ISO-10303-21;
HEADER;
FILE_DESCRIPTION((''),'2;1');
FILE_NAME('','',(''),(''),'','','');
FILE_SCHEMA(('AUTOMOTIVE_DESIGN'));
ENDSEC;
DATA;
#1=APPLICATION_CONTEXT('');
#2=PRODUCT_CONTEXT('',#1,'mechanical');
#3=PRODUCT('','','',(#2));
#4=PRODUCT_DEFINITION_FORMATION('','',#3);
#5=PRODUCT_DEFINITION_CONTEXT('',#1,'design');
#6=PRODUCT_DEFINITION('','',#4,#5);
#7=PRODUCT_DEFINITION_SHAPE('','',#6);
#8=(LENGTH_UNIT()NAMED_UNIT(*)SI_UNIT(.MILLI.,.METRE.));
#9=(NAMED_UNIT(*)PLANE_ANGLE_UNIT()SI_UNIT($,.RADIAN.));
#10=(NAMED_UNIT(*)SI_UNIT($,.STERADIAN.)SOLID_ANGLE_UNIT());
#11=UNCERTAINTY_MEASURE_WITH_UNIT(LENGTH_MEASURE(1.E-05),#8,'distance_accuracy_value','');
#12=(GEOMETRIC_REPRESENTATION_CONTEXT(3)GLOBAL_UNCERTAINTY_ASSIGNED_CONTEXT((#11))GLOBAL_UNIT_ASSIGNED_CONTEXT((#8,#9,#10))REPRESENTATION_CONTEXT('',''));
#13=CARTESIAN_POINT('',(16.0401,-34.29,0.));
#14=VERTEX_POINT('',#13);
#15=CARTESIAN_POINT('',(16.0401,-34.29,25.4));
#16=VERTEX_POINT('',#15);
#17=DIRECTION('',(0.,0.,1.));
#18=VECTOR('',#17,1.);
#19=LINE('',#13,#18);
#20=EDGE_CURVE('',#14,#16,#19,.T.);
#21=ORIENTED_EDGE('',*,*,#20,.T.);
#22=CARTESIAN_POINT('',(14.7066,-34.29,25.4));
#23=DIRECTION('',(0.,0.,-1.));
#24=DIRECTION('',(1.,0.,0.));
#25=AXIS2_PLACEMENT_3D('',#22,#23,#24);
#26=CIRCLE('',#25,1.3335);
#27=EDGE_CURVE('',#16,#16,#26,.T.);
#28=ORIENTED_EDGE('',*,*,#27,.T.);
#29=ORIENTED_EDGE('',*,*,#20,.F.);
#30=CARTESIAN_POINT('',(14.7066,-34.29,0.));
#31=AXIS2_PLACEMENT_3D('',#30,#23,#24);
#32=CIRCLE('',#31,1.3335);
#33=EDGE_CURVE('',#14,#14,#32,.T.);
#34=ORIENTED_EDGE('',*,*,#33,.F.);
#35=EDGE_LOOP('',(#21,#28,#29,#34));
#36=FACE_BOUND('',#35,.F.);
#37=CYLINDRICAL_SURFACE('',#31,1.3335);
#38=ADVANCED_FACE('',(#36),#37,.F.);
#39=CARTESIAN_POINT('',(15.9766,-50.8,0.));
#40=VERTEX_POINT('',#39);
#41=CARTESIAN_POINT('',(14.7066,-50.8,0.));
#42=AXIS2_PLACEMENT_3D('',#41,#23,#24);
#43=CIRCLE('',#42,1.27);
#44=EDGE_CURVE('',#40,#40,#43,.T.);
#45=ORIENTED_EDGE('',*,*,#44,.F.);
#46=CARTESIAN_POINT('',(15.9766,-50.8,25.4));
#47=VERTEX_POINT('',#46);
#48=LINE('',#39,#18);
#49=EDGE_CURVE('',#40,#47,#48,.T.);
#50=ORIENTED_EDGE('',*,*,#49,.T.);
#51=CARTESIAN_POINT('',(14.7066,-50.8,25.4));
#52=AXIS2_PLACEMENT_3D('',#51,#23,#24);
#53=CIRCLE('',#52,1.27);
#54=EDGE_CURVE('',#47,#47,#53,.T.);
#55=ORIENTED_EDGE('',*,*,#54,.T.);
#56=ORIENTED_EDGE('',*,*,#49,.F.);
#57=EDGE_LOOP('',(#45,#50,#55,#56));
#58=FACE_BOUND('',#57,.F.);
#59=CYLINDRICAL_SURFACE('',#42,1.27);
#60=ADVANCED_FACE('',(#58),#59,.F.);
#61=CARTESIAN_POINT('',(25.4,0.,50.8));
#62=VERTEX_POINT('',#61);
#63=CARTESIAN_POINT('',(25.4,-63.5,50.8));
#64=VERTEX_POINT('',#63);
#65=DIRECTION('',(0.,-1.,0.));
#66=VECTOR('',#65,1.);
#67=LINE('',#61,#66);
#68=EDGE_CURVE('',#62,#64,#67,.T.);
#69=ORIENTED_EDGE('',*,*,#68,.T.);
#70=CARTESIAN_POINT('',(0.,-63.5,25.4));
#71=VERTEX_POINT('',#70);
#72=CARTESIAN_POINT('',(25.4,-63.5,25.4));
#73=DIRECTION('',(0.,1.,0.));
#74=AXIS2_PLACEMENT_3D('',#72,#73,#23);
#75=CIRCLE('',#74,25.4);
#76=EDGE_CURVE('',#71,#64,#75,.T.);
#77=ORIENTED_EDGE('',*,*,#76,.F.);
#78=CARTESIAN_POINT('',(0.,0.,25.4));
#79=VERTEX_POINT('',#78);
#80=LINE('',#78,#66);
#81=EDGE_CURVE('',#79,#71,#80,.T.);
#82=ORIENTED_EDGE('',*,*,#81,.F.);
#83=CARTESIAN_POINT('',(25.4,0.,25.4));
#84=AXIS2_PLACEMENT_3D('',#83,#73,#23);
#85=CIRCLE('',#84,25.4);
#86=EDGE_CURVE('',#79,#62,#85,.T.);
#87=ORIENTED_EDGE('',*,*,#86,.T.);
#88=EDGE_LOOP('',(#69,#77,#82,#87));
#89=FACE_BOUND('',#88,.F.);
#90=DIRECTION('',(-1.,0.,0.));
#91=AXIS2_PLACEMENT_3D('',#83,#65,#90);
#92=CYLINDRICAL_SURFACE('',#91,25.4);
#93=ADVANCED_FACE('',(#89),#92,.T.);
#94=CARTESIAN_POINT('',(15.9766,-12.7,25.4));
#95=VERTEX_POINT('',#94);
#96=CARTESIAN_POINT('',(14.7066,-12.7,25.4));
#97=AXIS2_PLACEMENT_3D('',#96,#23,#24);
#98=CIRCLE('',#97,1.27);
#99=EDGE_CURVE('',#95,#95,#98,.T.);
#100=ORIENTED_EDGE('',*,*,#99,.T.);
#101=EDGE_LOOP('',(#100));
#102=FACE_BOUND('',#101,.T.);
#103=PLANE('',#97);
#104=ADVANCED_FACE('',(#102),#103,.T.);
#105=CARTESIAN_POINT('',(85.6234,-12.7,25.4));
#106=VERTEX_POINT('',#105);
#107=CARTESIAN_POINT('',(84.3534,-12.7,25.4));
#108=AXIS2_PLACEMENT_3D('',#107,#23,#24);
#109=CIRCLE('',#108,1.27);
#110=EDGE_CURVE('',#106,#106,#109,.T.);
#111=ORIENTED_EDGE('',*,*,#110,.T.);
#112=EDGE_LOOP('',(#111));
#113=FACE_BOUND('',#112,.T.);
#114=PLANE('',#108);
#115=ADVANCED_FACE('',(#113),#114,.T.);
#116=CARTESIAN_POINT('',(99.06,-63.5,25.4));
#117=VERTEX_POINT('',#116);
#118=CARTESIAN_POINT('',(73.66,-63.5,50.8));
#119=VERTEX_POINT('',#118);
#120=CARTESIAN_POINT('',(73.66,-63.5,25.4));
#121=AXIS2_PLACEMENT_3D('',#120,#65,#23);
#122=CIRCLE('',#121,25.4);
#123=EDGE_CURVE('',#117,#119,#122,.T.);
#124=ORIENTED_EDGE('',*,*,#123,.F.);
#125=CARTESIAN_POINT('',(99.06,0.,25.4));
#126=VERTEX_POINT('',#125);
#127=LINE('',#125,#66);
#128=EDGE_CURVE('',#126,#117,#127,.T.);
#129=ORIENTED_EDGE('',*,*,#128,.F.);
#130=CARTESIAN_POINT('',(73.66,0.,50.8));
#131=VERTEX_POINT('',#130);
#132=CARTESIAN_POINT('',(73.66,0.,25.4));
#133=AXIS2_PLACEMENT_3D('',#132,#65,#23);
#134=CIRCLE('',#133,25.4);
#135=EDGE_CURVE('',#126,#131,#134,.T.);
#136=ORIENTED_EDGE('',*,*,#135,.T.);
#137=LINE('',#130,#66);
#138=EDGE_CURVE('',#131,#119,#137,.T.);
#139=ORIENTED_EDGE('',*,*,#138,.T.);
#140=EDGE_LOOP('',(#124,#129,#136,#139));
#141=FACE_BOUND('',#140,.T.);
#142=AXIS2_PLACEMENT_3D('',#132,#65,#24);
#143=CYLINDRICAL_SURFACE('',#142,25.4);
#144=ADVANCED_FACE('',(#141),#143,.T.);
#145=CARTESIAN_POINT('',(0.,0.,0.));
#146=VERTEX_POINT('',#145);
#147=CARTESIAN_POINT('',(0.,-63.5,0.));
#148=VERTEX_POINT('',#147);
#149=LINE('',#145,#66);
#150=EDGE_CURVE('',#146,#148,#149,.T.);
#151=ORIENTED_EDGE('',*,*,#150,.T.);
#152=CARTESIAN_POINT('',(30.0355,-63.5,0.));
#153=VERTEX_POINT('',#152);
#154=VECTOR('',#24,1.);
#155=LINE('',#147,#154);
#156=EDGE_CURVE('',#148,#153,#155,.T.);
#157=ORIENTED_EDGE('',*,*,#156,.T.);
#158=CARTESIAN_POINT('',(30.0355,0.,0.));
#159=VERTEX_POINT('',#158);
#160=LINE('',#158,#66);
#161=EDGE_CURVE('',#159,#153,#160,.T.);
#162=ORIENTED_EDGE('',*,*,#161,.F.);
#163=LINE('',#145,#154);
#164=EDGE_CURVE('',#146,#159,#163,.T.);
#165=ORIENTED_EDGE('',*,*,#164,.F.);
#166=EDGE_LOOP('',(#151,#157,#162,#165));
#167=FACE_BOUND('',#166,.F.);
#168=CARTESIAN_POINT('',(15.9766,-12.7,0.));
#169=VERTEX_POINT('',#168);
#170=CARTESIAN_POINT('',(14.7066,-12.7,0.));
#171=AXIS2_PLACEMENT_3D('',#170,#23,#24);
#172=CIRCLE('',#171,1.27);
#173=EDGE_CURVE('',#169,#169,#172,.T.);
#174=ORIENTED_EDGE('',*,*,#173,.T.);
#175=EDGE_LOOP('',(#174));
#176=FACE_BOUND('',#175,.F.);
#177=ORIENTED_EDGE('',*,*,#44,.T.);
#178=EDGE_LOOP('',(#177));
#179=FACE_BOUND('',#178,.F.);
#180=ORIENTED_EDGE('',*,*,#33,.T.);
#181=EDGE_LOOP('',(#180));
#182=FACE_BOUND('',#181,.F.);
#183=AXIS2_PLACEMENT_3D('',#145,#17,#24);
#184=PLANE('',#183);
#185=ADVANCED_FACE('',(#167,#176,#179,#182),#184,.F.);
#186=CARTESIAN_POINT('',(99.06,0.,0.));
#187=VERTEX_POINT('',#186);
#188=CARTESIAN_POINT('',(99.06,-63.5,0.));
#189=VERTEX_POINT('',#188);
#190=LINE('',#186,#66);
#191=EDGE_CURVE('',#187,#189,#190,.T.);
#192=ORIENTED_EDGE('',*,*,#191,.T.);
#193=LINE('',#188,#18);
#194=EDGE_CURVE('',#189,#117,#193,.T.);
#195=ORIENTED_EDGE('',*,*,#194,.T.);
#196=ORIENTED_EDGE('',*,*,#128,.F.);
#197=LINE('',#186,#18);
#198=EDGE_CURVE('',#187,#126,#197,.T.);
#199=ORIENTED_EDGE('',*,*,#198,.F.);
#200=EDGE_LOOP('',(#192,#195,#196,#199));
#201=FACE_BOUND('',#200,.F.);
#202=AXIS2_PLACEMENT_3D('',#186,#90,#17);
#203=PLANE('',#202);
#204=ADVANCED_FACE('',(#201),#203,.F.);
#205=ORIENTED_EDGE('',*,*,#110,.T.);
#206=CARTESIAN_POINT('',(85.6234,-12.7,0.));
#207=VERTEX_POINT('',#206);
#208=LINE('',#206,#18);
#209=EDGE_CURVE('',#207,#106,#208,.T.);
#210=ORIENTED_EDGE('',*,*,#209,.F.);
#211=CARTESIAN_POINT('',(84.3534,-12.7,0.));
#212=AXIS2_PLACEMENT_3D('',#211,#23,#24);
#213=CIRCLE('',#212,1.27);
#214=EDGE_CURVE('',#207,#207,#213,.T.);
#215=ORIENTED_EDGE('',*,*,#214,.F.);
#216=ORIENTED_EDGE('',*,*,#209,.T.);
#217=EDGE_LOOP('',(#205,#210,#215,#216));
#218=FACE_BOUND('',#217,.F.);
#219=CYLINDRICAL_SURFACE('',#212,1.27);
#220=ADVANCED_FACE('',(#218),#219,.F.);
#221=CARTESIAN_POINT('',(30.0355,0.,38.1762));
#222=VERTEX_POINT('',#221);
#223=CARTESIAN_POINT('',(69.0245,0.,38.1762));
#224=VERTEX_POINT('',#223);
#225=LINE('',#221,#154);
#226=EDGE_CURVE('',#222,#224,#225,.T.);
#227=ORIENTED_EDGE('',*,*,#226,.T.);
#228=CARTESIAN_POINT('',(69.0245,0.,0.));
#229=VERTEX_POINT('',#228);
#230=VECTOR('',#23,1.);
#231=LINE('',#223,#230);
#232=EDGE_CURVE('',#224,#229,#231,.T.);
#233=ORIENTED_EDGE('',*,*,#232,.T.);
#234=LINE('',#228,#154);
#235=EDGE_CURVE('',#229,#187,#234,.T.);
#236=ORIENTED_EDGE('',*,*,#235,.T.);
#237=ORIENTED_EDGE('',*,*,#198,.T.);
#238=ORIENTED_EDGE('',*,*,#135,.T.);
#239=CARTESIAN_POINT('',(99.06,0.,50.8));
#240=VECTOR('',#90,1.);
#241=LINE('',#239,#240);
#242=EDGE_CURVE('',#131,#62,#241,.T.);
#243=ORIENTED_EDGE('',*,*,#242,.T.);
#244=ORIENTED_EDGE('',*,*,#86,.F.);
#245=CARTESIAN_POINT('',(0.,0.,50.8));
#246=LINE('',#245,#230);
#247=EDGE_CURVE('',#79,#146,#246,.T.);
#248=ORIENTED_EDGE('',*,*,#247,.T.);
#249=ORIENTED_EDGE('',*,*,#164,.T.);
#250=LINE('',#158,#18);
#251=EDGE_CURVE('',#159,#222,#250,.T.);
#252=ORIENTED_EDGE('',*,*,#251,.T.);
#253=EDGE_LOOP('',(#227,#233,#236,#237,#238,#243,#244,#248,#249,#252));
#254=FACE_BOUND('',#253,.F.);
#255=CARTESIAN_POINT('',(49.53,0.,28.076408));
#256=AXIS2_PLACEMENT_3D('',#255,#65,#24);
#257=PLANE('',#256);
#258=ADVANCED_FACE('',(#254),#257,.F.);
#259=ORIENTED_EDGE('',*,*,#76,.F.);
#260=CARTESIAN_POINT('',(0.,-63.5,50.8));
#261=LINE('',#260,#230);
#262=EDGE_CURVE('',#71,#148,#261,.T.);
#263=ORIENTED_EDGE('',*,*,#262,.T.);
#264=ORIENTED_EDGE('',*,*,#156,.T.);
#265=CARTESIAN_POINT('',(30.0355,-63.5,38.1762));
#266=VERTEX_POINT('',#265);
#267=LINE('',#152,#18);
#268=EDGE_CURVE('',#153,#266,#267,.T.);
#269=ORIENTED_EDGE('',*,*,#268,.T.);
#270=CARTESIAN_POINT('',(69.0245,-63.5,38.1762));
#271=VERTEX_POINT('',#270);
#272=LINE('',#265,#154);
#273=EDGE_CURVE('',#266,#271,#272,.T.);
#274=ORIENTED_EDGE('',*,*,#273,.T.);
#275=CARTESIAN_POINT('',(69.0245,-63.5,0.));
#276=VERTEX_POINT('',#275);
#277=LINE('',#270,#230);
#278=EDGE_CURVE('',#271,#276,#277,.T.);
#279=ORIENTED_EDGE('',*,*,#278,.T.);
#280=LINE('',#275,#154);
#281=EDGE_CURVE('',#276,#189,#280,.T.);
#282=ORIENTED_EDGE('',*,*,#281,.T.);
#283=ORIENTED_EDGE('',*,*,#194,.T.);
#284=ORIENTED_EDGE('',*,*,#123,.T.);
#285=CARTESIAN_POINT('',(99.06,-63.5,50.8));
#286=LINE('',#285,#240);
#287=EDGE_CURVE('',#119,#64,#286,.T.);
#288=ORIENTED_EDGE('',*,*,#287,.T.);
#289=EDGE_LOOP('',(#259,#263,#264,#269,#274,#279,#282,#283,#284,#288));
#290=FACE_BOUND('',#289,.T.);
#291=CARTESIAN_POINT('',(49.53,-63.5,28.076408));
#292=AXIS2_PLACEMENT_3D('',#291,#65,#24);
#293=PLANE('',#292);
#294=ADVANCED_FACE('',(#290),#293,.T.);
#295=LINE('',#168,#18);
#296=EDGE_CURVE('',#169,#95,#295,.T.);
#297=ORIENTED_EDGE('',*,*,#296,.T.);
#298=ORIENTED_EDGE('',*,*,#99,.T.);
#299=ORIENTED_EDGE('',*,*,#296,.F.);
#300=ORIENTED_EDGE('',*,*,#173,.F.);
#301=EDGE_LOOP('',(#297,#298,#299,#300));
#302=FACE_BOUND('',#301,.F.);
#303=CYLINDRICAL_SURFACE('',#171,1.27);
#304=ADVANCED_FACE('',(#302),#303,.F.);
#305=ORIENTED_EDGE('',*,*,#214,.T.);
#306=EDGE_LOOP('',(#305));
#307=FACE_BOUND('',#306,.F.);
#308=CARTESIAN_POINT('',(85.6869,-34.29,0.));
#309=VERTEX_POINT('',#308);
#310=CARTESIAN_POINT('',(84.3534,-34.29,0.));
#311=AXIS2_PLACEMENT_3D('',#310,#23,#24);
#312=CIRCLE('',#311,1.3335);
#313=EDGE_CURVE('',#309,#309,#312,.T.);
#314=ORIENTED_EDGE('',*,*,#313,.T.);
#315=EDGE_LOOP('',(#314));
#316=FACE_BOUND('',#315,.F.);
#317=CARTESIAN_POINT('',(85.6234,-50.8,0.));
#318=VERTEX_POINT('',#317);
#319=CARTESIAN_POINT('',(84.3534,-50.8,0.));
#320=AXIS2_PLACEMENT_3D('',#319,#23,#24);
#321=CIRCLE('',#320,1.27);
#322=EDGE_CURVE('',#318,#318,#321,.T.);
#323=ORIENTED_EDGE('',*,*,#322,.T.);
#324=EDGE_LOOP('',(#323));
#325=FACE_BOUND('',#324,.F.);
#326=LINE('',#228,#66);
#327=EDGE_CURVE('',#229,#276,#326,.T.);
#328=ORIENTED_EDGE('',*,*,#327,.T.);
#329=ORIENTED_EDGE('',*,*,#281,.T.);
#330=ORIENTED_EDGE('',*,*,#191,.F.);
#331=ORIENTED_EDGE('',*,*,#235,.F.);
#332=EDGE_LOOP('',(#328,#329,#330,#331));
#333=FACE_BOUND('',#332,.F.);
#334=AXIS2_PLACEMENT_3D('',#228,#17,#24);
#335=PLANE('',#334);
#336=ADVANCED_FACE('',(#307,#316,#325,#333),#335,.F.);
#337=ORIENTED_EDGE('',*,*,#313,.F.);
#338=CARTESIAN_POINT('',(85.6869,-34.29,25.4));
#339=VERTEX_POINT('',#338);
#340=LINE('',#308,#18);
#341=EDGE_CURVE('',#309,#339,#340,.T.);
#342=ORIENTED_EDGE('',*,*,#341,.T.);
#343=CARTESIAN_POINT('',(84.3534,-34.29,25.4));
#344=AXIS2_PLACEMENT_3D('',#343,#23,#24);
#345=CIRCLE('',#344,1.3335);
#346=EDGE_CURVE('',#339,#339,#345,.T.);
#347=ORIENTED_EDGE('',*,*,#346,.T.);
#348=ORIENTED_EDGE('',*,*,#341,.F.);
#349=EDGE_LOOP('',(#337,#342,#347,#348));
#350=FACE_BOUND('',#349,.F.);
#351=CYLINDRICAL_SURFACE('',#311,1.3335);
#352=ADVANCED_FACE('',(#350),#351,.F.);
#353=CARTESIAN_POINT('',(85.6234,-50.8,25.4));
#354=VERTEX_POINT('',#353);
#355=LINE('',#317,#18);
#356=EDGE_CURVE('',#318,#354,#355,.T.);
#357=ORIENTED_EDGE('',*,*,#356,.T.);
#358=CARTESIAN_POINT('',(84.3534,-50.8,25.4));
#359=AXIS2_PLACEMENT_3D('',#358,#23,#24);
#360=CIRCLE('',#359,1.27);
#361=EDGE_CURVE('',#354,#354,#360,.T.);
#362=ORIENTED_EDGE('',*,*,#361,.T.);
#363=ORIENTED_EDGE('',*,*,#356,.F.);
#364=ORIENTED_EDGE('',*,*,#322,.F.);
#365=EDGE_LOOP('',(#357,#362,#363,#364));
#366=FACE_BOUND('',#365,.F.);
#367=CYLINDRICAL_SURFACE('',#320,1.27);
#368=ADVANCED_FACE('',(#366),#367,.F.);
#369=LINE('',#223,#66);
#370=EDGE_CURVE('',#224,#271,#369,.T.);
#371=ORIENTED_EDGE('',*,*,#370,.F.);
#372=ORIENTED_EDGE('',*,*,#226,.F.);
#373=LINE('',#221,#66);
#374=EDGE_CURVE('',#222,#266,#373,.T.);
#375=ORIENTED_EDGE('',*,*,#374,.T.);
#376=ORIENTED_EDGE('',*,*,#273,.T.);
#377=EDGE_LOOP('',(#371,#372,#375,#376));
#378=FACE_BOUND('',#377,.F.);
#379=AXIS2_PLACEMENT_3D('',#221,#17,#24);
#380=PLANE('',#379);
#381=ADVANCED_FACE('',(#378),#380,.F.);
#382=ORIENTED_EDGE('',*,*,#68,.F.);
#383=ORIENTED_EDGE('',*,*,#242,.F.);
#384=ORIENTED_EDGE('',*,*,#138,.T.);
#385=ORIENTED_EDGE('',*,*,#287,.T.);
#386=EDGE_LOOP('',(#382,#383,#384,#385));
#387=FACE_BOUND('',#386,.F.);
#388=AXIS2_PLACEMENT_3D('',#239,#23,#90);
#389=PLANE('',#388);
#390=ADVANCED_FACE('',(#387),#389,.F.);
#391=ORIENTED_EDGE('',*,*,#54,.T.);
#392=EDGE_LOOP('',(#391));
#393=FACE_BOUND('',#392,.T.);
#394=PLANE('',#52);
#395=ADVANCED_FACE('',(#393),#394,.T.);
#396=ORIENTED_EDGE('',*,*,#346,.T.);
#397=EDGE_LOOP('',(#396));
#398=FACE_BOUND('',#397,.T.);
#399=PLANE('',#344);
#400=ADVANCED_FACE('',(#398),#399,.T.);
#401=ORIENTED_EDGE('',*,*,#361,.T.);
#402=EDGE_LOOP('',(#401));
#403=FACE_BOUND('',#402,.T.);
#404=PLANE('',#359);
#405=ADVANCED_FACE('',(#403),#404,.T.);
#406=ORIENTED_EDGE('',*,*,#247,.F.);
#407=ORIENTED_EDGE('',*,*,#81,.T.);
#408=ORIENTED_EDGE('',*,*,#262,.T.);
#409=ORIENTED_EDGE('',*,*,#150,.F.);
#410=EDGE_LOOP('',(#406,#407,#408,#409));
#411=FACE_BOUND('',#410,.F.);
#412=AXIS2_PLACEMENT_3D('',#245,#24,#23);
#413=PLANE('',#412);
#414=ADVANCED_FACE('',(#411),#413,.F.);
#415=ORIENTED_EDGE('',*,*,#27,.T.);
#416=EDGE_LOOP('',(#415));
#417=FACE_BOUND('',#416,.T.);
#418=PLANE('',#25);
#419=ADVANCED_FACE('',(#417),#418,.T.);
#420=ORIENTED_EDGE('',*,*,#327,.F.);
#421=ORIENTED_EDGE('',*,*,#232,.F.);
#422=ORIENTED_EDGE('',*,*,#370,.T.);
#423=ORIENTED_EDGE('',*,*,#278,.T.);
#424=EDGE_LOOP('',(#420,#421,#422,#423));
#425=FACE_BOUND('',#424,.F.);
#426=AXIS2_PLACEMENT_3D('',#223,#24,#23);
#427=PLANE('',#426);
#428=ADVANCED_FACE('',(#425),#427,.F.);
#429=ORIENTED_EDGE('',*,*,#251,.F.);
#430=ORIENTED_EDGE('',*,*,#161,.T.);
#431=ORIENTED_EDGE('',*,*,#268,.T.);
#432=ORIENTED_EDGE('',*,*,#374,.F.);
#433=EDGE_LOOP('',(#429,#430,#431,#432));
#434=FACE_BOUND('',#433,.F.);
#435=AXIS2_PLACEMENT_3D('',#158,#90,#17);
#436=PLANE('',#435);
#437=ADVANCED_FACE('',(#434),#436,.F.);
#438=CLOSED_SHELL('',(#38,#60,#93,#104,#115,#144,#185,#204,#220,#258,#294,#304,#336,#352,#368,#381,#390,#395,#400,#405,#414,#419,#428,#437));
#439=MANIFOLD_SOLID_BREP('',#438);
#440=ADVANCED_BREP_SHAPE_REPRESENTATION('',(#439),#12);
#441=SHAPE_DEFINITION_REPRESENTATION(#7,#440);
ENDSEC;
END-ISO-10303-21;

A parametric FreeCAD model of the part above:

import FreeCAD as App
import Part
import Sketcher
Q = App.Units.Quantity


def edges_at(feature, points):
    """Names of the edges that pass closest to the given points."""
    edges = feature.Shape.Edges
    near = lambda p: min(range(len(edges)), key=lambda i: edges[i].distToShape(Part.Vertex(*p))[0])
    return sorted({f"Edge{near(p) + 1}" for p in points})


def add_polygon(sketch, points):
    """Adds a closed chain of lines whose ends are joined by coincident constraints."""
    first, n = sketch.GeometryCount, len(points)
    for a, b in zip(points, points[1:] + points[:1]):
        sketch.addGeometry(Part.LineSegment(App.Vector(*a, 0), App.Vector(*b, 0)), False)
    for i in range(n):
        sketch.addConstraint(Sketcher.Constraint("Coincident", first + i, 2, first + (i + 1) % n, 1))

doc = App.newDocument("Part")
params = doc.addObject("Spreadsheet::Sheet", "Params")
for row, (alias, value) in enumerate([
    ("sketch1_height", "2 in"),
    ("sketch1_width", "3.9 in"),
    ("sketch1_width2", "1.535 in"),
    ("sketch1_height2", "1.503 in"),
    ("pad1_length", "2.5 in"),
    ("fillet_radius", "1 in"),
    ("sketch2_diameter", "0.1 in"),
    ("sketch2_diameter2", "0.105 in"),
    ("pocket1_length", "1 in"),
], start=1):
    params.set(f"A{row}", alias)
    params.set(f"B{row}", "=" + value)
    params.setAlias(f"B{row}", alias)

body = doc.addObject("PartDesign::Body", "Body")

sketch1 = body.newObject("Sketcher::SketchObject", "Sketch")
sketch1.AttachmentSupport = (doc.getObject("XZ_Plane"), [""])
sketch1.MapMode = "FlatFace"
add_polygon(sketch1, [(0, 50.8), (0, 0), (30.0355, 0), (30.0355, 38.1762), (69.0245, 38.1762), (69.0245, 0), (99.06, 0), (99.06, 50.8)])
sketch1.addConstraint(Sketcher.Constraint("Vertical", 0))
sketch1.addConstraint(Sketcher.Constraint("Horizontal", 1))
sketch1.addConstraint(Sketcher.Constraint("Vertical", 2))
sketch1.addConstraint(Sketcher.Constraint("Horizontal", 3))
sketch1.addConstraint(Sketcher.Constraint("Vertical", 4))
sketch1.addConstraint(Sketcher.Constraint("Horizontal", 5))
sketch1.addConstraint(Sketcher.Constraint("Vertical", 6))
sketch1.addConstraint(Sketcher.Constraint("Horizontal", 7))
sketch1.addConstraint(Sketcher.Constraint("Coincident", 0, 2, -1, 1))
sketch1.addConstraint(Sketcher.Constraint("PointOnObject", 4, 2, -1))
sketch1.addConstraint(Sketcher.Constraint("Equal", 1, 5))
sketch1.addConstraint(Sketcher.Constraint("DistanceY", 0, 2, 0, 1, Q("2 in")))
sketch1.addConstraint(Sketcher.Constraint("DistanceX", 7, 2, 7, 1, Q("3.9 in")))
sketch1.addConstraint(Sketcher.Constraint("DistanceX", 3, 1, 3, 2, Q("1.535 in")))
sketch1.addConstraint(Sketcher.Constraint("DistanceY", 2, 1, 2, 2, Q("1.503 in")))
sketch1.setExpression("Constraints[19]", "Params.sketch1_height")
sketch1.setExpression("Constraints[20]", "Params.sketch1_width")
sketch1.setExpression("Constraints[21]", "Params.sketch1_width2")
sketch1.setExpression("Constraints[22]", "Params.sketch1_height2")
pad1 = body.newObject("PartDesign::Pad", "Pad")
pad1.Profile = sketch1
pad1.setExpression("Length", "Params.pad1_length")
doc.recompute()

fillet = body.newObject("PartDesign::Fillet", "Fillet")
fillet.Base = (pad1, edges_at(pad1, [(99.06, -31.75, 50.8), (0, -31.75, 50.8)]))
fillet.setExpression("Radius", "Params.fillet_radius")

sketch2 = body.newObject("Sketcher::SketchObject", "Sketch001")
sketch2.AttachmentSupport = (doc.getObject("XY_Plane"), [""])
sketch2.MapMode = "FlatFace"
sketch2.addGeometry(Part.Circle(App.Vector(14.7066, -34.29, 0), App.Vector(0, 0, 1), 1.3335), False)
sketch2.addGeometry(Part.Circle(App.Vector(84.3534, -34.29, 0), App.Vector(0, 0, 1), 1.3335), False)
sketch2.addGeometry(Part.Circle(App.Vector(14.7066, -12.7, 0), App.Vector(0, 0, 1), 1.27), False)
sketch2.addGeometry(Part.Circle(App.Vector(84.3534, -12.7, 0), App.Vector(0, 0, 1), 1.27), False)
sketch2.addGeometry(Part.Circle(App.Vector(84.3534, -50.8, 0), App.Vector(0, 0, 1), 1.27), False)
sketch2.addGeometry(Part.Circle(App.Vector(14.7066, -50.8, 0), App.Vector(0, 0, 1), 1.27), False)
sketch2.addConstraint(Sketcher.Constraint("Equal", 0, 1))
sketch2.addConstraint(Sketcher.Constraint("Equal", 2, 3))
sketch2.addConstraint(Sketcher.Constraint("Equal", 3, 4))
sketch2.addConstraint(Sketcher.Constraint("Equal", 4, 5))
sketch2.addConstraint(Sketcher.Constraint("Horizontal", 0, 3, 1, 3))
sketch2.addConstraint(Sketcher.Constraint("Horizontal", 2, 3, 3, 3))
sketch2.addConstraint(Sketcher.Constraint("Horizontal", 4, 3, 5, 3))
sketch2.addConstraint(Sketcher.Constraint("Vertical", 0, 3, 2, 3))
sketch2.addConstraint(Sketcher.Constraint("Vertical", 1, 3, 3, 3))
sketch2.addConstraint(Sketcher.Constraint("Vertical", 3, 3, 4, 3))
sketch2.addConstraint(Sketcher.Constraint("Vertical", 2, 3, 5, 3))
sketch2.addConstraint(Sketcher.Constraint("Diameter", 2, Q("0.1 in")))
sketch2.addConstraint(Sketcher.Constraint("Diameter", 0, Q("0.105 in")))
sketch2.addConstraint(Sketcher.Constraint("DistanceY", 4, 3, -1, 1, Q("2 in")))
sketch2.addConstraint(Sketcher.Constraint("DistanceY", 2, 3, -1, 1, Q("0.5 in")))
sketch2.addConstraint(Sketcher.Constraint("DistanceY", 0, 3, -1, 1, Q("1.35 in")))
sketch2.addConstraint(Sketcher.Constraint("DistanceX", -1, 1, 0, 3, Q("0.579 in")))
sketch2.addConstraint(Sketcher.Constraint("DistanceX", -1, 1, 1, 3, Q("3.321 in")))
sketch2.setExpression("Constraints[11]", "Params.sketch2_diameter")
sketch2.setExpression("Constraints[12]", "Params.sketch2_diameter2")
pocket1 = body.newObject("PartDesign::Pocket", "Pocket")
pocket1.Profile = sketch2
pocket1.setExpression("Length", "Params.pocket1_length")
pocket1.Reversed = True

doc.recompute()
